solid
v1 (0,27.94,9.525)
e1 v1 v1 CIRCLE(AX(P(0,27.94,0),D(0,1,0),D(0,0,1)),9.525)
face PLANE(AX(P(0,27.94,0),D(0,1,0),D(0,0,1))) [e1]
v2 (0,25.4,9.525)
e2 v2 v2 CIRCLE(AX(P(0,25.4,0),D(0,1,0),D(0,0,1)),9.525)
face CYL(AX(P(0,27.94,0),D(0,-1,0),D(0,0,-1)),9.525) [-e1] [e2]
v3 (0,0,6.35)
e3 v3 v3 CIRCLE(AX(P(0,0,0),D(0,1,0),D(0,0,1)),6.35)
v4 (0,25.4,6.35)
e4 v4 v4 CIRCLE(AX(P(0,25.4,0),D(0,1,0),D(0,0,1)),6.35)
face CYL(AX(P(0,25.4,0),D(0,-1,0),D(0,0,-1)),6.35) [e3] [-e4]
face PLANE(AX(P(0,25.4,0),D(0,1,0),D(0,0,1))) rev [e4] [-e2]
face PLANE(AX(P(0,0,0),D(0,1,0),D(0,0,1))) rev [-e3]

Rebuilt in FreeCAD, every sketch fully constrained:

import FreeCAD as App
import Part
import Sketcher

V = App.Vector
Q = App.Units.Quantity

doc = App.newDocument("Part")
body = doc.addObject("PartDesign::Body", "Body")

# Sketch on XZ plane
sketch1 = doc.addObject("Sketcher::SketchObject", "Sketch")
body.addObject(sketch1)
sketch1.AttachmentSupport = (doc.XZ_Plane, [""])
sketch1.MapMode = "FlatFace"
sketch1.addGeometry(Part.Circle(V(0, 0, 0), V(0, 0, 1), 6), False)
sketch1.addConstraint([
    Sketcher.Constraint("Coincident", 0, 3, -1, 1),
    Sketcher.Constraint("Diameter", 0, Q("0.5 in")),
])
pad1 = doc.addObject("PartDesign::Pad", "Pad")
body.addObject(pad1)
pad1.Profile = sketch1
pad1.Length = Q("1 in")
pad1.Reversed = True

# Sketch on XZ plane
sketch2 = doc.addObject("Sketcher::SketchObject", "Sketch001")
body.addObject(sketch2)
sketch2.AttachmentSupport = (doc.XZ_Plane, [""])
sketch2.MapMode = "FlatFace"
sketch2.AttachmentOffset = App.Placement(V(0, 0, -1 * 25.4), App.Rotation())
sketch2.addGeometry(Part.Circle(V(0, 0, 0), V(0, 0, 1), 10), False)
sketch2.addConstraint([
    Sketcher.Constraint("Coincident", 0, 3, -1, 1),
    Sketcher.Constraint("Diameter", 0, Q("0.75 in")),
])
pad2 = doc.addObject("PartDesign::Pad", "Pad001")
body.addObject(pad2)
pad2.Profile = sketch2
pad2.Length = Q("0.1 in")
pad2.Reversed = True

doc.recompute()
